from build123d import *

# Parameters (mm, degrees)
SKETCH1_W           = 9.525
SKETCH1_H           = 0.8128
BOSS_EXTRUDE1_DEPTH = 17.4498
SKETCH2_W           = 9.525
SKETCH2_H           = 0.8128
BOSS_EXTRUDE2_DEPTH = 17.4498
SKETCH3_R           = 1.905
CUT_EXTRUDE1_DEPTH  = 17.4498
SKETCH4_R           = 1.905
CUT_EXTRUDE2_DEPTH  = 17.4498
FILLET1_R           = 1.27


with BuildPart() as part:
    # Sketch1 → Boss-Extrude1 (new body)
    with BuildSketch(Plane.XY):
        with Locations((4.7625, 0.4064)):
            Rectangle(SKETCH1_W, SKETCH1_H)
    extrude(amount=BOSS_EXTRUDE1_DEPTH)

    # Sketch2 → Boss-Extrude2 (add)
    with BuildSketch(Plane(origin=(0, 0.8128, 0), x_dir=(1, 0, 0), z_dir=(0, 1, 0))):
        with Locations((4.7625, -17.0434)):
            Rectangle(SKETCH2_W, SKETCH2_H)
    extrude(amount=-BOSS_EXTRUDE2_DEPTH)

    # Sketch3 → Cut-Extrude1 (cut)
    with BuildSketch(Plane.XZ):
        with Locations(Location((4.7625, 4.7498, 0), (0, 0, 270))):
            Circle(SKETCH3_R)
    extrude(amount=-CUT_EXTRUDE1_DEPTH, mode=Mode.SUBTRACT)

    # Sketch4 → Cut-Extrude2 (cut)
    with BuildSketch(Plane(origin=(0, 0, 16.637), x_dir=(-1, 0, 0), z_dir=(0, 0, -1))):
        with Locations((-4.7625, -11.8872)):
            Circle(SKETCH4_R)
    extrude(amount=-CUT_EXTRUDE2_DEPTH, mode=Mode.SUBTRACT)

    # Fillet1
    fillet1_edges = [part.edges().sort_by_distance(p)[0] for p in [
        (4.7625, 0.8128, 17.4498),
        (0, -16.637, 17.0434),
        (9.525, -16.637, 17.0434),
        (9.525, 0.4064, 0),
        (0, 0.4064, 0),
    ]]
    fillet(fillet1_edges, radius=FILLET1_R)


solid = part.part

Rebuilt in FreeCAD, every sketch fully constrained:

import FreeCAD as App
import Part
import Sketcher
from FreeCAD import Vector
Q = App.Units.Quantity


def edges_at(feature, points):
    """Names of the edges that pass closest to the given points."""
    edges = feature.Shape.Edges
    near = lambda p: min(range(len(edges)), key=lambda i: edges[i].distToShape(Part.Vertex(*p))[0])
    return sorted({f"Edge{near(p) + 1}" for p in points})


def add_polygon(sketch, points):
    """Adds a closed chain of lines whose ends are joined by coincident constraints."""
    first, n = sketch.GeometryCount, len(points)
    for a, b in zip(points, points[1:] + points[:1]):
        sketch.addGeometry(Part.LineSegment(App.Vector(*a, 0), App.Vector(*b, 0)), False)
    for i in range(n):
        sketch.addConstraint(Sketcher.Constraint("Coincident", first + i, 2, first + (i + 1) % n, 1))

doc = App.newDocument("Part")
body = doc.addObject("PartDesign::Body", "Body")

# Sketch on XY plane
sketch1 = body.newObject("Sketcher::SketchObject", "Sketch")
sketch1.AttachmentSupport = (doc.getObject("XY_Plane"), [""])
sketch1.MapMode = "FlatFace"
add_polygon(sketch1, [(0, 0.8128), (0, 0), (9.525, 0), (9.525, 0.8128)])  # lines 0-3
sketch1.addConstraint([
    Sketcher.Constraint("Vertical", 0),
    Sketcher.Constraint("Horizontal", 1),
    Sketcher.Constraint("Vertical", 2),
    Sketcher.Constraint("Horizontal", 3),
    Sketcher.Constraint("Coincident", 0, 2, -1, 1),
    Sketcher.Constraint("DistanceX", 1, 1, 1, 2, Q("0.375 in")),
    Sketcher.Constraint("DistanceY", 0, 2, 0, 1, Q("0.032 in")),
])
pad1 = body.newObject("PartDesign::Pad", "Pad")
pad1.Profile = sketch1
pad1.Length = Q("0.687 in")

# Sketch on XZ plane
sketch2 = body.newObject("Sketcher::SketchObject", "Sketch001")
sketch2.AttachmentSupport = (doc.getObject("XZ_Plane"), [""])
sketch2.MapMode = "FlatFace"
sketch2.AttachmentOffset = App.Placement(Vector(0, 0, -0.032 * 25.4), App.Rotation())
add_polygon(sketch2, [(0, 16.637), (0, 17.4498), (9.525, 17.4498), (9.525, 16.637)])  # lines 0-3
sketch2.addConstraint([
    Sketcher.Constraint("Vertical", 0),
    Sketcher.Constraint("Horizontal", 1),
    Sketcher.Constraint("Vertical", 2),
    Sketcher.Constraint("Horizontal", 3),
    Sketcher.Constraint("PointOnObject", 0, 2, -2),
    Sketcher.Constraint("DistanceX", 1, 1, 1, 2, Q("0.375 in")),
    Sketcher.Constraint("DistanceY", 0, 1, 0, 2, Q("0.032 in")),
    Sketcher.Constraint("DistanceY", -1, 1, 0, 2, Q("0.687 in")),
])
pad2 = body.newObject("PartDesign::Pad", "Pad001")
pad2.Profile = sketch2
pad2.Length = Q("0.687 in")

# Sketch on XZ plane
sketch3 = body.newObject("Sketcher::SketchObject", "Sketch002")
sketch3.AttachmentSupport = (doc.getObject("XZ_Plane"), [""])
sketch3.MapMode = "FlatFace"
sketch3.addGeometry(Part.Circle(Vector(4.7625, 4.7498, 0), Vector(0, 0, 1), 1.905), False)
sketch3.addConstraint([
    Sketcher.Constraint("Diameter", 0, Q("0.15 in")),
    Sketcher.Constraint("DistanceX", -1, 1, 0, 3, Q("0.1875 in")),
    Sketcher.Constraint("DistanceY", -1, 1, 0, 3, Q("0.187 in")),
])
pocket1 = body.newObject("PartDesign::Pocket", "Pocket")
pocket1.Profile = sketch3
pocket1.Length = Q("0.687 in")

# Sketch on XY plane
sketch4 = body.newObject("Sketcher::SketchObject", "Sketch003")
sketch4.AttachmentSupport = (doc.getObject("XY_Plane"), [""])
sketch4.MapMode = "FlatFace"
sketch4.AttachmentOffset = App.Placement(Vector(0, 0, 0.655 * 25.4), App.Rotation())
sketch4.addGeometry(Part.Circle(Vector(4.7625, -11.8872, 0), Vector(0, 0, 1), 1.905), False)
sketch4.addConstraint([
    Sketcher.Constraint("Diameter", 0, Q("0.15 in")),
    Sketcher.Constraint("DistanceX", -1, 1, 0, 3, Q("0.1875 in")),
    Sketcher.Constraint("DistanceY", 0, 3, -1, 1, Q("0.468 in")),
])
pocket2 = body.newObject("PartDesign::Pocket", "Pocket001")
pocket2.Profile = sketch4
pocket2.Length = Q("0.687 in")
pocket2.Reversed = True
doc.recompute()

fillet = body.newObject("PartDesign::Fillet", "Fillet")
fillet.Base = (pocket2, edges_at(pocket2, [
    (4.763, 0.813, 17.45),
    (0, -16.637, 17.043),
    (9.525, -16.637, 17.043),
    (9.525, 0.406, 0),
    (0, 0.406, 0),
]))
fillet.Radius = Q("0.05 in")

doc.recompute()
